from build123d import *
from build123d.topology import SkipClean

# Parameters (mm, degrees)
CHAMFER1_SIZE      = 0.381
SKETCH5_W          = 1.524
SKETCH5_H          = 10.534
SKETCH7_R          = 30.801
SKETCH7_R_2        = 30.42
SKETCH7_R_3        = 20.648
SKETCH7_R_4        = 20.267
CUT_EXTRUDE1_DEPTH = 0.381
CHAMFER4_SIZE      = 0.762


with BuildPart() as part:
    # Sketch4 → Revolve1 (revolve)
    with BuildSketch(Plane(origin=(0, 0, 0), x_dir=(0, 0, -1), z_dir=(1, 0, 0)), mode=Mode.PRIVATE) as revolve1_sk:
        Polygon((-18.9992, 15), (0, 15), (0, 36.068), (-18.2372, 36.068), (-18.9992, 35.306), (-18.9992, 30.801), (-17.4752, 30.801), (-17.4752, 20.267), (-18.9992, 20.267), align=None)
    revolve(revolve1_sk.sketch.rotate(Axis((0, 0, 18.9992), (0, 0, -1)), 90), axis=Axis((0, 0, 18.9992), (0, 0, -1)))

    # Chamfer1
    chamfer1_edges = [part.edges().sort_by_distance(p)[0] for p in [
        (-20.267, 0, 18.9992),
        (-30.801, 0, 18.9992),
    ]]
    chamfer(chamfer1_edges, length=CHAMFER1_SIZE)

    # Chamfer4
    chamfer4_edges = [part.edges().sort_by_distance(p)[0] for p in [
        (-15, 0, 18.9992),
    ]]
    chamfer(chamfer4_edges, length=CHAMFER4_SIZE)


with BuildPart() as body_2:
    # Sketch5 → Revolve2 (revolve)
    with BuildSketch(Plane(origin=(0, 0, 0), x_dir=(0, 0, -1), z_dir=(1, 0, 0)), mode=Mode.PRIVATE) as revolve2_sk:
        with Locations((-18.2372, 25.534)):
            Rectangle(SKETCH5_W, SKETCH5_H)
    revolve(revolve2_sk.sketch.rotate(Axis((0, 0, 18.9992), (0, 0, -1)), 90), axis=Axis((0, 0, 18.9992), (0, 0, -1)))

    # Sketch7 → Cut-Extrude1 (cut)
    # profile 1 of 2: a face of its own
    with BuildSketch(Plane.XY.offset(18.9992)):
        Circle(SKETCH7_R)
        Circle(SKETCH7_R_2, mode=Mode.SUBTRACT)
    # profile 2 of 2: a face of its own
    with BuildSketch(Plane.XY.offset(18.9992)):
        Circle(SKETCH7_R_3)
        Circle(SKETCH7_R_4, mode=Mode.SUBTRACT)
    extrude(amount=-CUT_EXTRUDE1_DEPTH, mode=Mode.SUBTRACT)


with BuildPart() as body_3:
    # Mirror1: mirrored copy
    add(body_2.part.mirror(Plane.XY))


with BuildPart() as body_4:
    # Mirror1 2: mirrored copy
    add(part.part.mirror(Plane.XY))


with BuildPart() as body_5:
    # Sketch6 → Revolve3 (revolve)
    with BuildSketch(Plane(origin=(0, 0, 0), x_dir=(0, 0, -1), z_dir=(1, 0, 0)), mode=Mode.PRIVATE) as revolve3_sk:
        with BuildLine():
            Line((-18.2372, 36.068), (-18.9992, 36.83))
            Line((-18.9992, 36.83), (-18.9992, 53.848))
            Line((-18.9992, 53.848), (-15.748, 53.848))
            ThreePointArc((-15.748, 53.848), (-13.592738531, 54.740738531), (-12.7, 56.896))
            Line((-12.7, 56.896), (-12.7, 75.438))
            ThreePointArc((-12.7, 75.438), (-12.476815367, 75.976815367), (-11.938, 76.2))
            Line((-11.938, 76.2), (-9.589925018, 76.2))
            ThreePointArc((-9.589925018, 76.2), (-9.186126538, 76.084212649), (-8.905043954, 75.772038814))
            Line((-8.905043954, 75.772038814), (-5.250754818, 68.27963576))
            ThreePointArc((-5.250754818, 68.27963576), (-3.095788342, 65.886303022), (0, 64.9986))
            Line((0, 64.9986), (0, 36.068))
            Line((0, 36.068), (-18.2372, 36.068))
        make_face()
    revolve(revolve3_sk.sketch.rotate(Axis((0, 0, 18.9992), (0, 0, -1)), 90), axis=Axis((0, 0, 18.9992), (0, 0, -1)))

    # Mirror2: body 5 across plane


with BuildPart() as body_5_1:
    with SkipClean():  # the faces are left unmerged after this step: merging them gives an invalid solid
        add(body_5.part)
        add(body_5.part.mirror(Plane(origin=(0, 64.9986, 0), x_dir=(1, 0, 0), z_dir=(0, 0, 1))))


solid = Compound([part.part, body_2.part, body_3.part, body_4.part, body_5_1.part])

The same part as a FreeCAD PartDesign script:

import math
import FreeCAD as App
import Part
import Sketcher

V = App.Vector
Q = App.Units.Quantity


def edges_at(feature, points):
    """Names of the edges that pass closest to the given points."""
    edges = feature.Shape.Edges
    near = lambda p: min(range(len(edges)), key=lambda i: edges[i].distToShape(Part.Vertex(*p))[0])
    return sorted({f"Edge{near(p) + 1}" for p in points})

doc = App.newDocument("Part")
params = doc.addObject("Spreadsheet::Sheet", "Params")
for row, (alias, value) in enumerate([
    ("sketch1_height", "0.06 in"),
    ("sketch1_height2", "0.748 in"),
    ("sketch1_height3", "0.718 in"),
    ("revolution_angle", "360 deg"),
    ("chamfer_size", "0.015 in"),
    ("chamfer2_size", "0.03 in"),
    ("sketch2_height", "0.06 in"),
    ("revolution2_angle", "360 deg"),
    ("pocket1_length", "0.015 in"),
    ("sketch4_radius", "0.23 in"),
    ("sketch4_radius2", "0.03 in"),
    ("sketch4_radius3", "0.12 in"),
    ("sketch4_width", "0.73 in"),
    ("sketch4_width2", "0.67 in"),
    ("revolution3_angle", "360 deg"),
], start=1):
    params.set(f"A{row}", alias)
    params.set(f"B{row}", "=" + value)
    params.setAlias(f"B{row}", alias)

body = doc.addObject("PartDesign::Body", "Body")

# Sketch on YZ plane
sketch1 = doc.addObject("Sketcher::SketchObject", "Sketch")
body.addObject(sketch1)
sketch1.AttachmentSupport = (doc.YZ_Plane, [""])
sketch1.MapMode = "FlatFace"
sketch1.addGeometry([
    Part.LineSegment(V(15, 19, 0), V(15, 0, 0)),  # 0
    Part.LineSegment(V(15, 0, 0), V(36.1, 0, 0)),  # 1
    Part.LineSegment(V(36.1, 0, 0), V(36.1, 18.2, 0)),  # 2
    Part.LineSegment(V(36.1, 18.2, 0), V(35.3, 19, 0)),  # 3
    Part.LineSegment(V(35.3, 19, 0), V(30.8, 19, 0)),  # 4
    Part.LineSegment(V(30.8, 19, 0), V(30.8, 17.5, 0)),  # 5
    Part.LineSegment(V(30.8, 17.5, 0), V(20.3, 17.5, 0)),  # 6
    Part.LineSegment(V(20.3, 17.5, 0), V(20.3, 19, 0)),  # 7
    Part.LineSegment(V(20.3, 19, 0), V(15, 19, 0)),  # 8
], False)
sketch1.addConstraint([
    Sketcher.Constraint("Coincident", 0, 2, 1, 1),
    Sketcher.Constraint("Coincident", 1, 2, 2, 1),
    Sketcher.Constraint("Coincident", 2, 2, 3, 1),
    Sketcher.Constraint("Coincident", 3, 2, 4, 1),
    Sketcher.Constraint("Coincident", 4, 2, 5, 1),
    Sketcher.Constraint("Coincident", 5, 2, 6, 1),
    Sketcher.Constraint("Coincident", 6, 2, 7, 1),
    Sketcher.Constraint("Coincident", 7, 2, 8, 1),
    Sketcher.Constraint("Coincident", 8, 2, 0, 1),
    Sketcher.Constraint("Vertical", 0),
    Sketcher.Constraint("Horizontal", 1),
    Sketcher.Constraint("Vertical", 2),
    Sketcher.Constraint("Horizontal", 4),
    Sketcher.Constraint("Vertical", 5),
    Sketcher.Constraint("Horizontal", 6),
    Sketcher.Constraint("Vertical", 7),
    Sketcher.Constraint("Horizontal", 8),
    Sketcher.Constraint("PointOnObject", 0, 2, -1),
    Sketcher.Constraint("Horizontal", 4, 2, 7, 2),
    Sketcher.Constraint("Angle", 3, Q("135 deg")),
    Sketcher.Constraint("DistanceY", 5, 2, 5, 1, Q("0.06 in")),
    Sketcher.Constraint("DistanceY", 0, 2, 0, 1, Q("0.748 in")),
    Sketcher.Constraint("DistanceY", 2, 1, 2, 2, Q("0.718 in")),
    Sketcher.Constraint("DistanceX", -1, 1, 1, 2, Q("1.42 in")),
    Sketcher.Constraint("DistanceX", 1, 1, 1, 2, Q("21.068 mm")),
    Sketcher.Constraint("DistanceX", 4, 2, 4, 1, Q("4.505 mm")),
    Sketcher.Constraint("DistanceX", 6, 2, 6, 1, Q("10.534 mm")),
])
sketch1.setExpression("Constraints[20]", "Params.sketch1_height")
sketch1.setExpression("Constraints[21]", "Params.sketch1_height2")
sketch1.setExpression("Constraints[22]", "Params.sketch1_height3")
revolution = doc.addObject("PartDesign::Revolution", "Revolution")
body.addObject(revolution)
revolution.Profile = sketch1
revolution.ReferenceAxis = (sketch1, ["V_Axis"])
revolution.setExpression("Angle", "Params.revolution_angle")
doc.recompute()

chamfer = doc.addObject("PartDesign::Chamfer", "Chamfer")
body.addObject(chamfer)
chamfer.Base = (revolution, edges_at(revolution, [(-20.267, 0, 18.999), (-30.801, 0, 18.999)]))
chamfer.setExpression("Size", "Params.chamfer_size")
doc.recompute()

chamfer2 = doc.addObject("PartDesign::Chamfer", "Chamfer001")
body.addObject(chamfer2)
chamfer2.Base = (chamfer, edges_at(chamfer, [(-15, 0, 18.999)]))
chamfer2.setExpression("Size", "Params.chamfer2_size")
body2 = doc.addObject("PartDesign::Body", "Body001")

# Sketch on YZ plane
sketch2 = doc.addObject("Sketcher::SketchObject", "Sketch001")
body2.addObject(sketch2)
sketch2.AttachmentSupport = (doc.getObject("YZ_Plane001"), [""])
sketch2.MapMode = "FlatFace"
sketch2.addGeometry([
    Part.LineSegment(V(30.8, 19, 0), V(20.3, 19, 0)),
    Part.LineSegment(V(20.3, 19, 0), V(20.3, 17.5, 0)),
    Part.LineSegment(V(20.3, 17.5, 0), V(30.8, 17.5, 0)),
    Part.LineSegment(V(30.8, 17.5, 0), V(30.8, 19, 0)),
], False)
sketch2.addConstraint([
    Sketcher.Constraint("Coincident", 0, 2, 1, 1),
    Sketcher.Constraint("Coincident", 1, 2, 2, 1),
    Sketcher.Constraint("Coincident", 2, 2, 3, 1),
    Sketcher.Constraint("Coincident", 3, 2, 0, 1),
    Sketcher.Constraint("Horizontal", 0),
    Sketcher.Constraint("Vertical", 1),
    Sketcher.Constraint("Horizontal", 2),
    Sketcher.Constraint("Vertical", 3),
    Sketcher.Constraint("DistanceY", 1, 2, 1, 1, Q("0.06 in")),
    Sketcher.Constraint("DistanceY", -1, 1, 0, 2, Q("0.748 in")),
    Sketcher.Constraint("DistanceX", 0, 2, 0, 1, Q("10.534 mm")),
    Sketcher.Constraint("DistanceX", -1, 1, 0, 2, Q("20.267 mm")),
])
sketch2.setExpression("Constraints[8]", "Params.sketch2_height")
revolution2 = doc.addObject("PartDesign::Revolution", "Revolution001")
body2.addObject(revolution2)
revolution2.Profile = sketch2
revolution2.ReferenceAxis = (sketch2, ["V_Axis"])
revolution2.setExpression("Angle", "Params.revolution2_angle")

# Sketch on XY plane
sketch3 = doc.addObject("Sketcher::SketchObject", "Sketch002")
body2.addObject(sketch3)
sketch3.AttachmentSupport = (doc.getObject("XY_Plane001"), [""])
sketch3.MapMode = "FlatFace"
sketch3.AttachmentOffset = App.Placement(V(0, 0, 0.748 * 25.4), App.Rotation())
sketch3.addGeometry([
    Part.Circle(V(0, 0, 0), V(0, 0, 1), 31),
    Part.Circle(V(0, 0, 0), V(0, 0, 1), 30),
    Part.Circle(V(0, 0, 0), V(0, 0, 1), 21),
    Part.Circle(V(0, 0, 0), V(0, 0, 1), 20),
], False)
sketch3.addConstraint([
    Sketcher.Constraint("Coincident", 0, 3, -1, 1),
    Sketcher.Constraint("Coincident", 1, 3, -1, 1),
    Sketcher.Constraint("Coincident", 2, 3, -1, 1),
    Sketcher.Constraint("Coincident", 3, 3, -1, 1),
    Sketcher.Constraint("Diameter", 0, Q("61.602 mm")),
    Sketcher.Constraint("Diameter", 1, Q("60.84 mm")),
    Sketcher.Constraint("Diameter", 2, Q("41.296 mm")),
    Sketcher.Constraint("Diameter", 3, Q("40.534 mm")),
])
pocket1 = doc.addObject("PartDesign::Pocket", "Pocket")
body2.addObject(pocket1)
pocket1.Profile = sketch3
pocket1.setExpression("Length", "Params.pocket1_length")
body3 = doc.addObject("PartDesign::Body", "Body002")
doc.recompute()

mirroring = doc.addObject("Part::Mirroring", "Mirroring")
mirroring.Source = body2
mirroring.Base = V(0, 0, 0)
mirroring.Normal = V(0, 0, 1)
body3.BaseFeature = mirroring
doc.recompute()
body4 = doc.addObject("PartDesign::Body", "Body003")
doc.recompute()

mirroring2 = doc.addObject("Part::Mirroring", "Mirroring001")
mirroring2.Source = body
mirroring2.Base = V(0, 0, 0)
mirroring2.Normal = V(0, 0, 1)
body4.BaseFeature = mirroring2
doc.recompute()
body5 = doc.addObject("PartDesign::Body", "Body004")

# Sketch on YZ plane
sketch4 = doc.addObject("Sketcher::SketchObject", "Sketch003")
body5.addObject(sketch4)
sketch4.AttachmentSupport = (doc.getObject("YZ_Plane004"), [""])
sketch4.MapMode = "FlatFace"
sketch4.addGeometry([
    Part.LineSegment(V(36.8, 19, 0), V(36.1, 18.2, 0)),  # 0
    Part.LineSegment(V(36.1, 18.2, 0), V(36.1, 0, 0)),  # 1
    Part.LineSegment(V(36.1, 0, 0), V(65, 0, 0)),  # 2
    Part.ArcOfCircle(Part.Circle(V(70.8, 0, 0), V(0, 0, 1), 5.8), math.radians(116), math.radians(180)),  # 3
    Part.LineSegment(V(68.3, 5.3, 0), V(75.8, 8.9, 0)),  # 4
    Part.ArcOfCircle(Part.Circle(V(75.4, 9.6, 0), V(0, 0, 1), 0.8), math.radians(-64), math.radians(0)),  # 5
    Part.LineSegment(V(76.2, 9.6, 0), V(76.2, 11.9, 0)),  # 6
    Part.ArcOfCircle(Part.Circle(V(75.4, 11.9, 0), V(0, 0, 1), 0.8), math.radians(0), math.radians(90)),  # 7
    Part.LineSegment(V(75.4, 12.7, 0), V(56.9, 12.7, 0)),  # 8
    Part.ArcOfCircle(Part.Circle(V(56.9, 15.7, 0), V(0, 0, 1), 3), math.radians(180), math.radians(270)),  # 9
    Part.LineSegment(V(53.8, 15.7, 0), V(53.8, 19, 0)),  # 10
    Part.LineSegment(V(53.8, 19, 0), V(36.8, 19, 0)),  # 11
], False)
sketch4.addConstraint([
    Sketcher.Constraint("Coincident", 0, 2, 1, 1),
    Sketcher.Constraint("Coincident", 1, 2, 2, 1),
    Sketcher.Constraint("Coincident", 2, 2, 3, 2),
    Sketcher.Constraint("Tangent", 3, 1, 4, 1),
    Sketcher.Constraint("Tangent", 4, 2, 5, 1),
    Sketcher.Constraint("Tangent", 5, 2, 6, 1),
    Sketcher.Constraint("Tangent", 6, 2, 7, 1),
    Sketcher.Constraint("Tangent", 7, 2, 8, 1),
    Sketcher.Constraint("Tangent", 8, 2, 9, 2),
    Sketcher.Constraint("Tangent", 9, 1, 10, 1),
    Sketcher.Constraint("Coincident", 10, 2, 11, 1),
    Sketcher.Constraint("Coincident", 11, 2, 0, 1),
    Sketcher.Constraint("Vertical", 1),
    Sketcher.Constraint("Horizontal", 2),
    Sketcher.Constraint("Vertical", 6),
    Sketcher.Constraint("Horizontal", 8),
    Sketcher.Constraint("Vertical", 10),
    Sketcher.Constraint("Horizontal", 11),
    Sketcher.Constraint("Equal", 5, 7),
    Sketcher.Constraint("PointOnObject", 3, 3, -1),
    Sketcher.Constraint("PointOnObject", 1, 2, -1),
    Sketcher.Constraint("Radius", 3, Q("0.23 in")),
    Sketcher.Constraint("Radius", 5, Q("0.03 in")),
    Sketcher.Constraint("Radius", 9, Q("0.12 in")),
    Sketcher.Constraint("DistanceX", -1, 1, 5, 2, Q("3 in")),
    Sketcher.Constraint("Angle", 0, Q("-135 deg")),
    Sketcher.Constraint("Angle", 4, Q("26 deg")),
    Sketcher.Constraint("DistanceX", 8, 2, 8, 1, Q("0.73 in")),
    Sketcher.Constraint("DistanceX", 11, 2, 11, 1, Q("0.67 in")),
    Sketcher.Constraint("DistanceY", -1, 1, 7, 2, Q("0.5 in")),
    Sketcher.Constraint("DistanceX", 0, 2, 9, 1, Q("0.7 in")),
    Sketcher.Constraint("DistanceX", 2, 1, 2, 2, Q("1.139 in")),
    Sketcher.Constraint("DistanceY", 1, 2, 1, 1, Q("0.718 in")),
])
sketch4.setExpression("Constraints[21]", "Params.sketch4_radius")
sketch4.setExpression("Constraints[22]", "Params.sketch4_radius2")
sketch4.setExpression("Constraints[23]", "Params.sketch4_radius3")
sketch4.setExpression("Constraints[27]", "Params.sketch4_width")
sketch4.setExpression("Constraints[28]", "Params.sketch4_width2")
revolution3 = doc.addObject("PartDesign::Revolution", "Revolution002")
body5.addObject(revolution3)
revolution3.Profile = sketch4
revolution3.ReferenceAxis = (sketch4, ["V_Axis"])
revolution3.setExpression("Angle", "Params.revolution3_angle")
body6 = doc.addObject("PartDesign::Body", "Body005")
doc.recompute()

body6.BaseFeature = body5
doc.recompute()

mirroring3 = doc.addObject("Part::Mirroring", "Mirroring002")
mirroring3.Source = body5
mirroring3.Base = V(0, 64.9986, 0)
mirroring3.Normal = V(0, 0, 1)
body7 = doc.addObject("PartDesign::Body", "Body006")
body7.BaseFeature = mirroring3
boolean = doc.addObject("PartDesign::Boolean", "Boolean")
body6.addObject(boolean)
boolean.Type = "Fuse"
boolean.addObjects([body7])
doc.recompute()
mirroring.Visibility = False
mirroring2.Visibility = False
mirroring3.Visibility = False

doc.recompute()
